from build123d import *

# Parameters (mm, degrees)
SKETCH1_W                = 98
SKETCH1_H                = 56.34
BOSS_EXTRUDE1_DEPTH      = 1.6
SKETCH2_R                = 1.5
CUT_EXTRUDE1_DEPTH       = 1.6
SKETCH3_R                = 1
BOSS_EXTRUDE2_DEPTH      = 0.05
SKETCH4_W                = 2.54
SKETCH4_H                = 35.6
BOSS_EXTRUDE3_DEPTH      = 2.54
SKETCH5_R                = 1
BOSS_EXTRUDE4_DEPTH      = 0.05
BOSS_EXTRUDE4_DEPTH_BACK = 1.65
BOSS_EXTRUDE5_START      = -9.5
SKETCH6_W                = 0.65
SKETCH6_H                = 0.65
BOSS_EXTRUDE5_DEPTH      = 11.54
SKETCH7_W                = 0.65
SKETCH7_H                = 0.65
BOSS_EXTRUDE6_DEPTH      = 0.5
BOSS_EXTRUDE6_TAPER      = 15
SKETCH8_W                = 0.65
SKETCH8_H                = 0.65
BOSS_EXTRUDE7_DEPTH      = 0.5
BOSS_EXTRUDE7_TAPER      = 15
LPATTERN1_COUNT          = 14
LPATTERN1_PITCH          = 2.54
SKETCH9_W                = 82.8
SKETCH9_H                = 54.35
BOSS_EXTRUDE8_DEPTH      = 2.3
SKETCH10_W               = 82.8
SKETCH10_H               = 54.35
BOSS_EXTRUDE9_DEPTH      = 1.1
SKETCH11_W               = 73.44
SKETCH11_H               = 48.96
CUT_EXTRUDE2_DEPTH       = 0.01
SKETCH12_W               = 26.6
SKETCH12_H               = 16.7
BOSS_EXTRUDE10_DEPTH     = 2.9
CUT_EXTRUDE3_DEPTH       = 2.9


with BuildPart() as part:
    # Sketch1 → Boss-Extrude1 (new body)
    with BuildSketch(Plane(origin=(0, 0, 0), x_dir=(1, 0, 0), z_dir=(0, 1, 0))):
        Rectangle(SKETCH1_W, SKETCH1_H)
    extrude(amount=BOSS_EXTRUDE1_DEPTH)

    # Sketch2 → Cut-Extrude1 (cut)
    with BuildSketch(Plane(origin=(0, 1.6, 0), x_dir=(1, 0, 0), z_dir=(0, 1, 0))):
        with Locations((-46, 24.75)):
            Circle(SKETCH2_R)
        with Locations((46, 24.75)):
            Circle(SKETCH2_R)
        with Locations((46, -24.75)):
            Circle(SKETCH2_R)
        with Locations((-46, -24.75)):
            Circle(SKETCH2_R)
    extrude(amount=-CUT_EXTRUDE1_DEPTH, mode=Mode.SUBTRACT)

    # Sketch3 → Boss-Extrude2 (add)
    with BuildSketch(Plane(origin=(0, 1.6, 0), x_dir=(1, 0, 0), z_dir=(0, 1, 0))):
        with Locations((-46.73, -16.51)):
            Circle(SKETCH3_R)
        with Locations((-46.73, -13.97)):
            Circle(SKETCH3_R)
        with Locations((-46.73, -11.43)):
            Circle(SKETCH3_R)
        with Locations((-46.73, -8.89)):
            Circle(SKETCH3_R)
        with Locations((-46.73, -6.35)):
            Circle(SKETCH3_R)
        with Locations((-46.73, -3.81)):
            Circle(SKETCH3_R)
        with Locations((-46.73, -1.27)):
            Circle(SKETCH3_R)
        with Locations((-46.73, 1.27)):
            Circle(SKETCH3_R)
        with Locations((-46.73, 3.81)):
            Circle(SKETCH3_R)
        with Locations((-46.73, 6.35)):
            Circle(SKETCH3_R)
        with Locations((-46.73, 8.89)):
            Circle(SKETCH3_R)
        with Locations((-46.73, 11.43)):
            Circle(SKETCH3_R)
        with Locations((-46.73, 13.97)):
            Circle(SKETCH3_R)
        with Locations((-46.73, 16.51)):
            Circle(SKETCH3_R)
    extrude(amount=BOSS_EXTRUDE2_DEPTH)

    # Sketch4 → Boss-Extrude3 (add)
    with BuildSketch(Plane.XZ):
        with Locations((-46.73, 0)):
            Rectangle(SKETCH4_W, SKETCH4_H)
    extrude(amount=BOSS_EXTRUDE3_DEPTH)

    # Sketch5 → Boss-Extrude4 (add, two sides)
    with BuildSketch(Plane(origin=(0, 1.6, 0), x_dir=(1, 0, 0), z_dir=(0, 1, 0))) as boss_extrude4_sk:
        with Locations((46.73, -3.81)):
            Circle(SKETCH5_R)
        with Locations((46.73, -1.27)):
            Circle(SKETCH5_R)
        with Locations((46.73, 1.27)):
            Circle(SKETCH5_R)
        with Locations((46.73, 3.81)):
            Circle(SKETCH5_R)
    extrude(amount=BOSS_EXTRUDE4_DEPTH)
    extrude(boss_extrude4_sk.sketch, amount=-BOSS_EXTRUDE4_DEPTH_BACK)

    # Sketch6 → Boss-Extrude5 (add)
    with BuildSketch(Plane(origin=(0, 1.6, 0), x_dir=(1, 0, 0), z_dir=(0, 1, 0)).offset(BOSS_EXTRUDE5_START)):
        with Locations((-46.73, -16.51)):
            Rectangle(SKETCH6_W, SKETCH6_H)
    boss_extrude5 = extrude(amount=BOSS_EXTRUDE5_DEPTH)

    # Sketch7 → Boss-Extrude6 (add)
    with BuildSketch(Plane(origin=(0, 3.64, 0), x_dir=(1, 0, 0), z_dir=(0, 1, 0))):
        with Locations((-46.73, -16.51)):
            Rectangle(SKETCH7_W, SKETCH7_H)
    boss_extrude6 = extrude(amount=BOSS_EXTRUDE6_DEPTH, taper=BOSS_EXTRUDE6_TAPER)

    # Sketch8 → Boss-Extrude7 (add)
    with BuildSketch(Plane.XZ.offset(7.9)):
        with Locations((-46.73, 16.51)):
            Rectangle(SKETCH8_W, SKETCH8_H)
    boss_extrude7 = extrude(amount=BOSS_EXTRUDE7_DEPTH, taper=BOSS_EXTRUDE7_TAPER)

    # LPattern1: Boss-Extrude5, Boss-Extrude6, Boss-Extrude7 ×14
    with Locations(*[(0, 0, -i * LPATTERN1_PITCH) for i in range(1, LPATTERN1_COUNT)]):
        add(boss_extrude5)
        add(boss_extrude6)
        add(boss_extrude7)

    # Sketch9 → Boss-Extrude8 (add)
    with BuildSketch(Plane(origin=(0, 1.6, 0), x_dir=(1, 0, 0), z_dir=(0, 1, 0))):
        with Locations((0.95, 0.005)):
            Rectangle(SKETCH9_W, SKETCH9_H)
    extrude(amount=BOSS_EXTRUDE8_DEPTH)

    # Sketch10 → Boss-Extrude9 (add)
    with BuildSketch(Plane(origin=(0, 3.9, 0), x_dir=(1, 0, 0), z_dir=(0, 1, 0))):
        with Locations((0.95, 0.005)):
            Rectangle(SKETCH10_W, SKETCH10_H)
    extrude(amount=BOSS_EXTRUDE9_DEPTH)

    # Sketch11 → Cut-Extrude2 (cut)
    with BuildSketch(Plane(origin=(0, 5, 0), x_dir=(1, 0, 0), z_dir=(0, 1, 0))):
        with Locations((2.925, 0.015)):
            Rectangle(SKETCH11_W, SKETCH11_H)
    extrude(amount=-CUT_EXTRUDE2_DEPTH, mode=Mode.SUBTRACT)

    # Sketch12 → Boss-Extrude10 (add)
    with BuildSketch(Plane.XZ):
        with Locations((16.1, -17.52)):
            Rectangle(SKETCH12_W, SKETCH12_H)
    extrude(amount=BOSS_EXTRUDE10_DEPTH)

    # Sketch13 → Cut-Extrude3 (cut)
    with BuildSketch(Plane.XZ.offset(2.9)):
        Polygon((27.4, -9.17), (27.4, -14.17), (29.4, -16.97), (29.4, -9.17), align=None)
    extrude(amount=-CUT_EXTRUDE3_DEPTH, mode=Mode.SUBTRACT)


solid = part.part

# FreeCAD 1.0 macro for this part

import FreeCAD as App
import Part
import Sketcher

V = App.Vector
Q = App.Units.Quantity


def add_polygon(sketch, points):
    """Adds a closed chain of lines whose ends are joined by coincident constraints."""
    first, n = sketch.GeometryCount, len(points)
    for a, b in zip(points, points[1:] + points[:1]):
        sketch.addGeometry(Part.LineSegment(App.Vector(*a, 0), App.Vector(*b, 0)), False)
    for i in range(n):
        sketch.addConstraint(Sketcher.Constraint("Coincident", first + i, 2, first + (i + 1) % n, 1))

doc = App.newDocument("Part")
params = doc.addObject("Spreadsheet::Sheet", "Params")
for row, (alias, value) in enumerate([
    ("sketch1_width", "98 mm"),
    ("sketch1_height", "56.34 mm"),
    ("pad1_length", "1.6 mm"),
    ("sketch2_diameter", "3 mm"),
    ("pocket1_length", "1.6 mm"),
    ("sketch3_diameter", "2 mm"),
    ("pad2_length", "0.05 mm"),
    ("sketch4_height", "35.6 mm"),
    ("sketch4_width", "2.54 mm"),
    ("pad3_length", "2.54 mm"),
    ("sketch5_diameter", "2 mm"),
    ("pad4_length", "0.05 mm"),
    ("pad4_length2", "1.65 mm"),
    ("sketch6_width", "0.65 mm"),
    ("pad5_length", "11.54 mm"),
    ("sketch7_width", "0.65 mm"),
    ("pad6_length", "0.5 mm"),
    ("pad6_taper", "-15 deg"),
    ("sketch8_width", "0.65 mm"),
    ("pad7_length", "0.5 mm"),
    ("pad7_taper", "-15 deg"),
    ("linearpattern_pitch", "2.54 mm"),
    ("sketch9_width", "82.8 mm"),
    ("sketch9_height", "54.35 mm"),
    ("pad8_length", "2.3 mm"),
    ("sketch10_width", "82.8 mm"),
    ("sketch10_height", "54.35 mm"),
    ("pad9_length", "1.1 mm"),
    ("sketch11_width", "73.44 mm"),
    ("sketch11_height", "48.96 mm"),
    ("pocket2_length", "0.01 mm"),
    ("sketch12_width", "26.6 mm"),
    ("sketch12_height", "16.7 mm"),
    ("pad10_length", "2.9 mm"),
    ("sketch13_width", "2 mm"),
    ("sketch13_height", "5 mm"),
    ("sketch13_height2", "7.8 mm"),
    ("pocket3_length", "2.9 mm"),
], start=1):
    params.set(f"A{row}", alias)
    params.set(f"B{row}", "=" + value)
    params.setAlias(f"B{row}", alias)

body = doc.addObject("PartDesign::Body", "Body")

sketch1 = body.newObject("Sketcher::SketchObject", "Sketch")
sketch1.AttachmentSupport = (doc.getObject("XZ_Plane"), [""])
sketch1.MapMode = "FlatFace"
add_polygon(sketch1, [(-49, -28), (-49, 28), (49, 28), (49, -28)])
sketch1.addConstraint(Sketcher.Constraint("Vertical", 0))
sketch1.addConstraint(Sketcher.Constraint("Horizontal", 1))
sketch1.addConstraint(Sketcher.Constraint("Vertical", 2))
sketch1.addConstraint(Sketcher.Constraint("Horizontal", 3))
sketch1.addConstraint(Sketcher.Constraint("Symmetric", 0, 2, 2, 2, -1, 1))
sketch1.addConstraint(Sketcher.Constraint("DistanceX", 1, 1, 1, 2, Q("98 mm")))
sketch1.addConstraint(Sketcher.Constraint("DistanceY", 0, 1, 0, 2, Q("56.34 mm")))
sketch1.setExpression("Constraints[9]", "Params.sketch1_width")
sketch1.setExpression("Constraints[10]", "Params.sketch1_height")
pad1 = body.newObject("PartDesign::Pad", "Pad")
pad1.Profile = sketch1
pad1.setExpression("Length", "Params.pad1_length")
pad1.Reversed = True

sketch2 = body.newObject("Sketcher::SketchObject", "Sketch001")
sketch2.AttachmentSupport = (doc.getObject("XZ_Plane"), [""])
sketch2.MapMode = "FlatFace"
sketch2.AttachmentOffset = App.Placement(V(0, 0, -1.6), App.Rotation())
sketch2.addGeometry(Part.Circle(V(-46, -24.8, 0), V(0, 0, 1), 1.5), False)
sketch2.addGeometry(Part.Circle(V(46, -24.8, 0), V(0, 0, 1), 1.5), False)
sketch2.addGeometry(Part.Circle(V(46, 24.8, 0), V(0, 0, 1), 1.5), False)
sketch2.addGeometry(Part.Circle(V(-46, 24.8, 0), V(0, 0, 1), 1.5), False)
sketch2.addConstraint(Sketcher.Constraint("Equal", 0, 1))
sketch2.addConstraint(Sketcher.Constraint("Equal", 1, 2))
sketch2.addConstraint(Sketcher.Constraint("Equal", 2, 3))
sketch2.addConstraint(Sketcher.Constraint("Symmetric", 0, 3, 2, 3, -1, 1))
sketch2.addConstraint(Sketcher.Constraint("Symmetric", 1, 3, 3, 3, -1, 1))
sketch2.addConstraint(Sketcher.Constraint("Symmetric", 0, 3, 1, 3, -2))
sketch2.addConstraint(Sketcher.Constraint("Diameter", 0, Q("3 mm")))
sketch2.addConstraint(Sketcher.Constraint("DistanceX", 0, 3, -1, 1, Q("46 mm")))
sketch2.addConstraint(Sketcher.Constraint("DistanceY", 1, 3, 2, 3, Q("49.5 mm")))
sketch2.setExpression("Constraints[6]", "Params.sketch2_diameter")
pocket1 = body.newObject("PartDesign::Pocket", "Pocket")
pocket1.Profile = sketch2
pocket1.setExpression("Length", "Params.pocket1_length")
pocket1.Reversed = True

sketch3 = body.newObject("Sketcher::SketchObject", "Sketch002")
sketch3.AttachmentSupport = (doc.getObject("XZ_Plane"), [""])
sketch3.MapMode = "FlatFace"
sketch3.AttachmentOffset = App.Placement(V(0, 0, -1.6), App.Rotation())
sketch3.addGeometry(Part.Circle(V(-46.7, 16.5, 0), V(0, 0, 1), 1), False)
sketch3.addGeometry(Part.Circle(V(-46.7, 14, 0), V(0, 0, 1), 1), False)
sketch3.addGeometry(Part.Circle(V(-46.7, 11.4, 0), V(0, 0, 1), 1), False)
sketch3.addGeometry(Part.Circle(V(-46.7, 8.9, 0), V(0, 0, 1), 1), False)
sketch3.addGeometry(Part.Circle(V(-46.7, 6.3, 0), V(0, 0, 1), 1), False)
sketch3.addGeometry(Part.Circle(V(-46.7, 3.8, 0), V(0, 0, 1), 1), False)
sketch3.addGeometry(Part.Circle(V(-46.7, 1.3, 0), V(0, 0, 1), 1), False)
sketch3.addGeometry(Part.Circle(V(-46.7, -1.3, 0), V(0, 0, 1), 1), False)
sketch3.addGeometry(Part.Circle(V(-46.7, -3.8, 0), V(0, 0, 1), 1), False)
sketch3.addGeometry(Part.Circle(V(-46.7, -6.3, 0), V(0, 0, 1), 1), False)
sketch3.addGeometry(Part.Circle(V(-46.7, -8.9, 0), V(0, 0, 1), 1), False)
sketch3.addGeometry(Part.Circle(V(-46.7, -11.4, 0), V(0, 0, 1), 1), False)
sketch3.addGeometry(Part.Circle(V(-46.7, -14, 0), V(0, 0, 1), 1), False)
sketch3.addGeometry(Part.Circle(V(-46.7, -16.5, 0), V(0, 0, 1), 1), False)
sketch3.addConstraint(Sketcher.Constraint("Equal", 0, 1))
sketch3.addConstraint(Sketcher.Constraint("Equal", 1, 2))
sketch3.addConstraint(Sketcher.Constraint("Equal", 2, 3))
sketch3.addConstraint(Sketcher.Constraint("Equal", 3, 4))
sketch3.addConstraint(Sketcher.Constraint("Equal", 4, 5))
sketch3.addConstraint(Sketcher.Constraint("Equal", 5, 6))
sketch3.addConstraint(Sketcher.Constraint("Equal", 6, 7))
sketch3.addConstraint(Sketcher.Constraint("Equal", 7, 8))
sketch3.addConstraint(Sketcher.Constraint("Equal", 8, 9))
sketch3.addConstraint(Sketcher.Constraint("Equal", 9, 10))
sketch3.addConstraint(Sketcher.Constraint("Equal", 10, 11))
sketch3.addConstraint(Sketcher.Constraint("Equal", 11, 12))
sketch3.addConstraint(Sketcher.Constraint("Equal", 12, 13))
sketch3.addConstraint(Sketcher.Constraint("Symmetric", 6, 3, 7, 3, -1))
sketch3.addConstraint(Sketcher.Constraint("Symmetric", 5, 3, 8, 3, -1))
sketch3.addConstraint(Sketcher.Constraint("Symmetric", 4, 3, 9, 3, -1))
sketch3.addConstraint(Sketcher.Constraint("Symmetric", 3, 3, 10, 3, -1))
sketch3.addConstraint(Sketcher.Constraint("Symmetric", 2, 3, 11, 3, -1))
sketch3.addConstraint(Sketcher.Constraint("Symmetric", 1, 3, 12, 3, -1))
sketch3.addConstraint(Sketcher.Constraint("Symmetric", 0, 3, 13, 3, -1))
sketch3.addConstraint(Sketcher.Constraint("Vertical", 0, 3, 1, 3))
sketch3.addConstraint(Sketcher.Constraint("Vertical", 1, 3, 2, 3))
sketch3.addConstraint(Sketcher.Constraint("Vertical", 2, 3, 3, 3))
sketch3.addConstraint(Sketcher.Constraint("Vertical", 3, 3, 4, 3))
sketch3.addConstraint(Sketcher.Constraint("Vertical", 4, 3, 5, 3))
sketch3.addConstraint(Sketcher.Constraint("Vertical", 5, 3, 6, 3))
sketch3.addConstraint(Sketcher.Constraint("Diameter", 0, Q("2 mm")))
sketch3.addConstraint(Sketcher.Constraint("DistanceY", 5, 3, 0, 3, Q("12.7 mm")))
sketch3.addConstraint(Sketcher.Constraint("DistanceY", 6, 3, 1, 3, Q("12.7 mm")))
sketch3.addConstraint(Sketcher.Constraint("DistanceY", 7, 3, 2, 3, Q("12.7 mm")))
sketch3.addConstraint(Sketcher.Constraint("DistanceY", 8, 3, 3, 3, Q("12.7 mm")))
sketch3.addConstraint(Sketcher.Constraint("DistanceY", 9, 3, 4, 3, Q("12.7 mm")))
sketch3.addConstraint(Sketcher.Constraint("DistanceX", 0, 3, -1, 1, Q("46.73 mm")))
sketch3.addConstraint(Sketcher.Constraint("DistanceY", -1, 1, 0, 3, Q("16.51 mm")))
sketch3.addConstraint(Sketcher.Constraint("DistanceY", -1, 1, 1, 3, Q("13.97 mm")))
sketch3.setExpression("Constraints[26]", "Params.sketch3_diameter")
pad2 = body.newObject("PartDesign::Pad", "Pad001")
pad2.Profile = sketch3
pad2.setExpression("Length", "Params.pad2_length")
pad2.Reversed = True

sketch4 = body.newObject("Sketcher::SketchObject", "Sketch003")
sketch4.AttachmentSupport = (doc.getObject("XZ_Plane"), [""])
sketch4.MapMode = "FlatFace"
add_polygon(sketch4, [(-48, 17.8), (-48, -17.8), (-45.5, -17.8), (-45.5, 17.8)])
sketch4.addConstraint(Sketcher.Constraint("Vertical", 0))
sketch4.addConstraint(Sketcher.Constraint("Horizontal", 1))
sketch4.addConstraint(Sketcher.Constraint("Vertical", 2))
sketch4.addConstraint(Sketcher.Constraint("Horizontal", 3))
sketch4.addConstraint(Sketcher.Constraint("DistanceY", 0, 2, 0, 1, Q("35.6 mm")))
sketch4.addConstraint(Sketcher.Constraint("DistanceX", 0, 2, -1, 1, Q("48 mm")))
sketch4.addConstraint(Sketcher.Constraint("DistanceX", 1, 1, 1, 2, Q("2.54 mm")))
sketch4.addConstraint(Sketcher.Constraint("DistanceY", 0, 2, -1, 1, Q("17.8 mm")))
sketch4.setExpression("Constraints[8]", "Params.sketch4_height")
sketch4.setExpression("Constraints[10]", "Params.sketch4_width")
pad3 = body.newObject("PartDesign::Pad", "Pad002")
pad3.Profile = sketch4
pad3.setExpression("Length", "Params.pad3_length")

sketch5 = body.newObject("Sketcher::SketchObject", "Sketch004")
sketch5.AttachmentSupport = (doc.getObject("XZ_Plane"), [""])
sketch5.MapMode = "FlatFace"
sketch5.AttachmentOffset = App.Placement(V(0, 0, -1.6), App.Rotation())
sketch5.addGeometry(Part.Circle(V(46.7, 3.8, 0), V(0, 0, 1), 1), False)
sketch5.addGeometry(Part.Circle(V(46.7, 1.3, 0), V(0, 0, 1), 1), False)
sketch5.addGeometry(Part.Circle(V(46.7, -1.3, 0), V(0, 0, 1), 1), False)
sketch5.addGeometry(Part.Circle(V(46.7, -3.8, 0), V(0, 0, 1), 1), False)
sketch5.addConstraint(Sketcher.Constraint("Equal", 0, 1))
sketch5.addConstraint(Sketcher.Constraint("Equal", 1, 2))
sketch5.addConstraint(Sketcher.Constraint("Equal", 2, 3))
sketch5.addConstraint(Sketcher.Constraint("Symmetric", 1, 3, 2, 3, -1))
sketch5.addConstraint(Sketcher.Constraint("Symmetric", 0, 3, 3, 3, -1))
sketch5.addConstraint(Sketcher.Constraint("Vertical", 0, 3, 1, 3))
sketch5.addConstraint(Sketcher.Constraint("Diameter", 0, Q("2 mm")))
sketch5.addConstraint(Sketcher.Constraint("DistanceX", -1, 1, 0, 3, Q("46.73 mm")))
sketch5.addConstraint(Sketcher.Constraint("DistanceY", -1, 1, 0, 3, Q("3.81 mm")))
sketch5.addConstraint(Sketcher.Constraint("DistanceY", -1, 1, 1, 3, Q("1.27 mm")))
sketch5.setExpression("Constraints[6]", "Params.sketch5_diameter")
pad4 = body.newObject("PartDesign::Pad", "Pad003")
pad4.Profile = sketch5
pad4.Type = "TwoLengths"
pad4.setExpression("Length", "Params.pad4_length")
pad4.setExpression("Length2", "Params.pad4_length2")
pad4.Reversed = True

sketch6 = body.newObject("Sketcher::SketchObject", "Sketch005")
sketch6.AttachmentSupport = (doc.getObject("XZ_Plane"), [""])
sketch6.MapMode = "FlatFace"
sketch6.AttachmentOffset = App.Placement(V(0, 0, 7.9), App.Rotation())
add_polygon(sketch6, [(-47.1, 16.2), (-47.1, 16.8), (-46.4, 16.8), (-46.4, 16.2)])
sketch6.addConstraint(Sketcher.Constraint("Vertical", 0))
sketch6.addConstraint(Sketcher.Constraint("Horizontal", 1))
sketch6.addConstraint(Sketcher.Constraint("Vertical", 2))
sketch6.addConstraint(Sketcher.Constraint("Horizontal", 3))
sketch6.addConstraint(Sketcher.Constraint("Equal", 3, 0))
sketch6.addConstraint(Sketcher.Constraint("DistanceX", 1, 1, 1, 2, Q("0.65 mm")))
sketch6.addConstraint(Sketcher.Constraint("DistanceX", 0, 2, -1, 1, Q("47.055 mm")))
sketch6.addConstraint(Sketcher.Constraint("DistanceY", -1, 1, 0, 2, Q("16.835 mm")))
sketch6.setExpression("Constraints[9]", "Params.sketch6_width")
pad5 = body.newObject("PartDesign::Pad", "Pad004")
pad5.Profile = sketch6
pad5.setExpression("Length", "Params.pad5_length")
pad5.Reversed = True

sketch7 = body.newObject("Sketcher::SketchObject", "Sketch006")
sketch7.AttachmentSupport = (doc.getObject("XZ_Plane"), [""])
sketch7.MapMode = "FlatFace"
sketch7.AttachmentOffset = App.Placement(V(0, 0, -3.64), App.Rotation())
add_polygon(sketch7, [(-47.1, 16.2), (-47.1, 16.8), (-46.4, 16.8), (-46.4, 16.2)])
sketch7.addConstraint(Sketcher.Constraint("Vertical", 0))
sketch7.addConstraint(Sketcher.Constraint("Horizontal", 1))
sketch7.addConstraint(Sketcher.Constraint("Vertical", 2))
sketch7.addConstraint(Sketcher.Constraint("Horizontal", 3))
sketch7.addConstraint(Sketcher.Constraint("Equal", 3, 0))
sketch7.addConstraint(Sketcher.Constraint("DistanceX", 1, 1, 1, 2, Q("0.65 mm")))
sketch7.addConstraint(Sketcher.Constraint("DistanceX", 0, 2, -1, 1, Q("47.055 mm")))
sketch7.addConstraint(Sketcher.Constraint("DistanceY", -1, 1, 0, 2, Q("16.835 mm")))
sketch7.setExpression("Constraints[9]", "Params.sketch7_width")
pad6 = body.newObject("PartDesign::Pad", "Pad005")
pad6.Profile = sketch7
pad6.setExpression("Length", "Params.pad6_length")
pad6.Reversed = True
pad6.setExpression("TaperAngle", "Params.pad6_taper")

sketch8 = body.newObject("Sketcher::SketchObject", "Sketch007")
sketch8.AttachmentSupport = (doc.getObject("XZ_Plane"), [""])
sketch8.MapMode = "FlatFace"
sketch8.AttachmentOffset = App.Placement(V(0, 0, 7.9), App.Rotation())
add_polygon(sketch8, [(-47.1, 16.8), (-47.1, 16.2), (-46.4, 16.2), (-46.4, 16.8)])
sketch8.addConstraint(Sketcher.Constraint("Vertical", 0))
sketch8.addConstraint(Sketcher.Constraint("Horizontal", 1))
sketch8.addConstraint(Sketcher.Constraint("Vertical", 2))
sketch8.addConstraint(Sketcher.Constraint("Horizontal", 3))
sketch8.addConstraint(Sketcher.Constraint("Equal", 3, 0))
sketch8.addConstraint(Sketcher.Constraint("DistanceX", 1, 1, 1, 2, Q("0.65 mm")))
sketch8.addConstraint(Sketcher.Constraint("DistanceX", 0, 2, -1, 1, Q("47.055 mm")))
sketch8.addConstraint(Sketcher.Constraint("DistanceY", -1, 1, 0, 2, Q("16.185 mm")))
sketch8.setExpression("Constraints[9]", "Params.sketch8_width")
pad7 = body.newObject("PartDesign::Pad", "Pad006")
pad7.Profile = sketch8
pad7.setExpression("Length", "Params.pad7_length")
pad7.setExpression("TaperAngle", "Params.pad7_taper")
doc.recompute()

linearpattern = body.newObject("PartDesign::LinearPattern", "LinearPattern")
linearpattern.Originals = [pad5, pad6, pad7]
linearpattern.Direction = (doc.getObject("Z_Axis"), [""])
linearpattern.Mode = "offset"
linearpattern.setExpression("Offset", "Params.linearpattern_pitch")
linearpattern.Occurrences = 14
linearpattern.Reversed = True
body.Tip = linearpattern

sketch9 = body.newObject("Sketcher::SketchObject", "Sketch008")
sketch9.AttachmentSupport = (doc.getObject("XZ_Plane"), [""])
sketch9.MapMode = "FlatFace"
sketch9.AttachmentOffset = App.Placement(V(0, 0, -1.6), App.Rotation())
add_polygon(sketch9, [(-40, -27), (-40, 27), (42, 27), (42, -27)])
sketch9.addConstraint(Sketcher.Constraint("Vertical", 0))
sketch9.addConstraint(Sketcher.Constraint("Horizontal", 1))
sketch9.addConstraint(Sketcher.Constraint("Vertical", 2))
sketch9.addConstraint(Sketcher.Constraint("Horizontal", 3))
sketch9.addConstraint(Sketcher.Constraint("DistanceX", 1, 1, 1, 2, Q("82.8 mm")))
sketch9.addConstraint(Sketcher.Constraint("DistanceY", 0, 1, 0, 2, Q("54.35 mm")))
sketch9.addConstraint(Sketcher.Constraint("DistanceX", 0, 2, -1, 1, Q("40.45 mm")))
sketch9.addConstraint(Sketcher.Constraint("DistanceY", -1, 1, 0, 2, Q("27.17 mm")))
sketch9.setExpression("Constraints[8]", "Params.sketch9_width")
sketch9.setExpression("Constraints[9]", "Params.sketch9_height")
pad8 = body.newObject("PartDesign::Pad", "Pad007")
pad8.Profile = sketch9
pad8.setExpression("Length", "Params.pad8_length")
pad8.Reversed = True

sketch10 = body.newObject("Sketcher::SketchObject", "Sketch009")
sketch10.AttachmentSupport = (doc.getObject("XZ_Plane"), [""])
sketch10.MapMode = "FlatFace"
sketch10.AttachmentOffset = App.Placement(V(0, 0, -3.9), App.Rotation())
add_polygon(sketch10, [(-40, -27), (-40, 27), (42, 27), (42, -27)])
sketch10.addConstraint(Sketcher.Constraint("Vertical", 0))
sketch10.addConstraint(Sketcher.Constraint("Horizontal", 1))
sketch10.addConstraint(Sketcher.Constraint("Vertical", 2))
sketch10.addConstraint(Sketcher.Constraint("Horizontal", 3))
sketch10.addConstraint(Sketcher.Constraint("DistanceX", 1, 1, 1, 2, Q("82.8 mm")))
sketch10.addConstraint(Sketcher.Constraint("DistanceY", 0, 1, 0, 2, Q("54.35 mm")))
sketch10.addConstraint(Sketcher.Constraint("DistanceX", 0, 2, -1, 1, Q("40.45 mm")))
sketch10.addConstraint(Sketcher.Constraint("DistanceY", -1, 1, 0, 2, Q("27.17 mm")))
sketch10.setExpression("Constraints[8]", "Params.sketch10_width")
sketch10.setExpression("Constraints[9]", "Params.sketch10_height")
pad9 = body.newObject("PartDesign::Pad", "Pad008")
pad9.Profile = sketch10
pad9.setExpression("Length", "Params.pad9_length")
pad9.Reversed = True

sketch11 = body.newObject("Sketcher::SketchObject", "Sketch010")
sketch11.AttachmentSupport = (doc.getObject("XZ_Plane"), [""])
sketch11.MapMode = "FlatFace"
sketch11.AttachmentOffset = App.Placement(V(0, 0, -5), App.Rotation())
add_polygon(sketch11, [(-34, -24), (-34, 24), (40, 24), (40, -24)])
sketch11.addConstraint(Sketcher.Constraint("Vertical", 0))
sketch11.addConstraint(Sketcher.Constraint("Horizontal", 1))
sketch11.addConstraint(Sketcher.Constraint("Vertical", 2))
sketch11.addConstraint(Sketcher.Constraint("Horizontal", 3))
sketch11.addConstraint(Sketcher.Constraint("DistanceX", 1, 1, 1, 2, Q("73.44 mm")))
sketch11.addConstraint(Sketcher.Constraint("DistanceY", 0, 1, 0, 2, Q("48.96 mm")))
sketch11.addConstraint(Sketcher.Constraint("DistanceX", 0, 2, -1, 1, Q("33.795 mm")))
sketch11.addConstraint(Sketcher.Constraint("DistanceY", -1, 1, 0, 2, Q("24.465 mm")))
sketch11.setExpression("Constraints[8]", "Params.sketch11_width")
sketch11.setExpression("Constraints[9]", "Params.sketch11_height")
pocket2 = body.newObject("PartDesign::Pocket", "Pocket001")
pocket2.Profile = sketch11
pocket2.setExpression("Length", "Params.pocket2_length")
pocket2.Reversed = True

sketch12 = body.newObject("Sketcher::SketchObject", "Sketch011")
sketch12.AttachmentSupport = (doc.getObject("XZ_Plane"), [""])
sketch12.MapMode = "FlatFace"
add_polygon(sketch12, [(3, -9), (3, -26), (29, -26), (29, -9)])
sketch12.addConstraint(Sketcher.Constraint("Vertical", 0))
sketch12.addConstraint(Sketcher.Constraint("Horizontal", 1))
sketch12.addConstraint(Sketcher.Constraint("Vertical", 2))
sketch12.addConstraint(Sketcher.Constraint("Horizontal", 3))
sketch12.addConstraint(Sketcher.Constraint("DistanceX", 1, 1, 1, 2, Q("26.6 mm")))
sketch12.addConstraint(Sketcher.Constraint("DistanceY", 0, 2, 0, 1, Q("16.7 mm")))
sketch12.addConstraint(Sketcher.Constraint("DistanceX", -1, 1, 0, 2, Q("2.8 mm")))
sketch12.addConstraint(Sketcher.Constraint("DistanceY", 0, 2, -1, 1, Q("25.87 mm")))
sketch12.setExpression("Constraints[8]", "Params.sketch12_width")
sketch12.setExpression("Constraints[9]", "Params.sketch12_height")
pad10 = body.newObject("PartDesign::Pad", "Pad009")
pad10.Profile = sketch12
pad10.setExpression("Length", "Params.pad10_length")

sketch13 = body.newObject("Sketcher::SketchObject", "Sketch012")
sketch13.AttachmentSupport = (doc.getObject("XZ_Plane"), [""])
sketch13.MapMode = "FlatFace"
sketch13.AttachmentOffset = App.Placement(V(0, 0, 2.9), App.Rotation())
add_polygon(sketch13, [(27.4, -9.2), (27.4, -14.2), (29.4, -17), (29.4, -9.2)])
sketch13.addConstraint(Sketcher.Constraint("Vertical", 0))
sketch13.addConstraint(Sketcher.Constraint("Vertical", 2))
sketch13.addConstraint(Sketcher.Constraint("Horizontal", 3))
sketch13.addConstraint(Sketcher.Constraint("DistanceX", 3, 2, 3, 1, Q("2 mm")))
sketch13.addConstraint(Sketcher.Constraint("DistanceY", 0, 2, 0, 1, Q("5 mm")))
sketch13.addConstraint(Sketcher.Constraint("DistanceY", 2, 1, 2, 2, Q("7.8 mm")))
sketch13.addConstraint(Sketcher.Constraint("DistanceX", -1, 1, 0, 2, Q("27.4 mm")))
sketch13.addConstraint(Sketcher.Constraint("DistanceY", 0, 2, -1, 1, Q("14.17 mm")))
sketch13.setExpression("Constraints[7]", "Params.sketch13_width")
sketch13.setExpression("Constraints[8]", "Params.sketch13_height")
sketch13.setExpression("Constraints[9]", "Params.sketch13_height2")
pocket3 = body.newObject("PartDesign::Pocket", "Pocket002")
pocket3.Profile = sketch13
pocket3.setExpression("Length", "Params.pocket3_length")

doc.recompute()
